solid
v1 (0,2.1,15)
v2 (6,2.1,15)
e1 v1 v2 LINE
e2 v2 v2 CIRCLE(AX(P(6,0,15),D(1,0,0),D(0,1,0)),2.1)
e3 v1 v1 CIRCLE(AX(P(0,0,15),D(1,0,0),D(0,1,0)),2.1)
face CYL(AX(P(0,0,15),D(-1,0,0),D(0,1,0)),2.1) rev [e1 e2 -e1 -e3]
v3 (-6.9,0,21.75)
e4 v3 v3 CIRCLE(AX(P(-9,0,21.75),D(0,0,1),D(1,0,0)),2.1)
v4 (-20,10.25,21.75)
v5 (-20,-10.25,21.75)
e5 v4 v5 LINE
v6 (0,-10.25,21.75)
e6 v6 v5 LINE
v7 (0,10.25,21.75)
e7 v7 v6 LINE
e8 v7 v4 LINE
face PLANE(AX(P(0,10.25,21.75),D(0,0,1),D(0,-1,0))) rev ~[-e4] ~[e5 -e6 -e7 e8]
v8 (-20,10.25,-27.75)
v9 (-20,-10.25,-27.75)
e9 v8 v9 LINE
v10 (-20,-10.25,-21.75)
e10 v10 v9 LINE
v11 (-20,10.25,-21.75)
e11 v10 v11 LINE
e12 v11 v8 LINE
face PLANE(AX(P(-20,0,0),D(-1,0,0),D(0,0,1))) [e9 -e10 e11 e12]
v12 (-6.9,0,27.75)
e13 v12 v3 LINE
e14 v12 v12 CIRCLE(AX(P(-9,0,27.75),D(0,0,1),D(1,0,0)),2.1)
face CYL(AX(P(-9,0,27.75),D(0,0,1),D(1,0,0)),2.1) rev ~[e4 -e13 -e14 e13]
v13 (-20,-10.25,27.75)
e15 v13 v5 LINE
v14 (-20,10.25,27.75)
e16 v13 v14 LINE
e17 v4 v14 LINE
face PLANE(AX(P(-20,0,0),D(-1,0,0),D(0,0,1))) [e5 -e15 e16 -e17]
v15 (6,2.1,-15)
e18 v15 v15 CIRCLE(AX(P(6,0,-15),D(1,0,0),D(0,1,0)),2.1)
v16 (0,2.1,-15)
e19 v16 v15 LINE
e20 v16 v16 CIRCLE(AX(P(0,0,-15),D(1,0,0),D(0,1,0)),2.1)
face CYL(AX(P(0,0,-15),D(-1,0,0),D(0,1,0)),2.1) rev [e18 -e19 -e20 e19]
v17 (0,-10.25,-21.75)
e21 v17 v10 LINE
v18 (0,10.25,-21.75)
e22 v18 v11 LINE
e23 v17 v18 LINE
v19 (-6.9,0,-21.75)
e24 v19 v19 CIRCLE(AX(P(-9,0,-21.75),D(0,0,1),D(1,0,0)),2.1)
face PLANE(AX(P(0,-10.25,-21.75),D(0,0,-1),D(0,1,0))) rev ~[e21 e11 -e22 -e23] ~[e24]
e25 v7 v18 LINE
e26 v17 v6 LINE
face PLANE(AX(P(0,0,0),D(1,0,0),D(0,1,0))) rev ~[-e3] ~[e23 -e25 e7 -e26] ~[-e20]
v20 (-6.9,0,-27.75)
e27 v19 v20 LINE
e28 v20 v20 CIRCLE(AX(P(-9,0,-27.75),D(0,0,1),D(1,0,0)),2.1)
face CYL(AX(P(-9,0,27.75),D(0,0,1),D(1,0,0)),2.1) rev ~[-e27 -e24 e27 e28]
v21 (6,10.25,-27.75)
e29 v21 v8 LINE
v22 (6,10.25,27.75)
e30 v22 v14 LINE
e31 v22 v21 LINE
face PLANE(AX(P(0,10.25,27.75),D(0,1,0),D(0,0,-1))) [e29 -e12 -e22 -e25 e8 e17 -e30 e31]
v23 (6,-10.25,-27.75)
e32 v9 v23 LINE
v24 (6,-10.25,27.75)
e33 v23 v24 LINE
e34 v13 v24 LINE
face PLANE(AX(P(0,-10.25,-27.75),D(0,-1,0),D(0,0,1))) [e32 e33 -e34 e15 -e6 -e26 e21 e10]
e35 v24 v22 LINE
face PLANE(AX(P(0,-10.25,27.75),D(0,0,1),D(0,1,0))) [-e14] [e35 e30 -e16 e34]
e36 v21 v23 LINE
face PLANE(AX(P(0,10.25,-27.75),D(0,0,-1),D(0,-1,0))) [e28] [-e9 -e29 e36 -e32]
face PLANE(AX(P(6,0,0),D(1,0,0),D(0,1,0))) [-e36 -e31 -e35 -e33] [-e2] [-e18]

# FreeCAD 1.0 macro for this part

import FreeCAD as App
import Part
import Sketcher
from FreeCAD import Vector

doc = App.newDocument("Part")
body = doc.addObject("PartDesign::Body", "Body")

sketch1 = body.newObject("Sketcher::SketchObject", "Sketch")
sketch1.AttachmentSupport = (doc.getObject("YZ_Plane"), [""])
sketch1.MapMode = "FlatFace"
sketch1.addGeometry([
    Part.LineSegment(Vector(10.25, 27.75, 0), Vector(-10.25, 27.75, 0)),
    Part.LineSegment(Vector(-10.25, 27.75, 0), Vector(-10.25, -27.75, 0)),
    Part.LineSegment(Vector(-10.25, -27.75, 0), Vector(10.25, -27.75, 0)),
    Part.LineSegment(Vector(10.25, -27.75, 0), Vector(10.25, 27.75, 0)),
    Part.Circle(Vector(0, -15, 0), Vector(0, 0, 1), 2.1),
    Part.Circle(Vector(0, 15, 0), Vector(0, 0, 1), 2.1),
], False)
sketch1.addConstraint([
    Sketcher.Constraint("Coincident", 0, 2, 1, 1),
    Sketcher.Constraint("Coincident", 1, 2, 2, 1),
    Sketcher.Constraint("Coincident", 2, 2, 3, 1),
    Sketcher.Constraint("Coincident", 3, 2, 0, 1),
    Sketcher.Constraint("Horizontal", 0),
    Sketcher.Constraint("Vertical", 1),
    Sketcher.Constraint("Horizontal", 2),
    Sketcher.Constraint("Vertical", 3),
    Sketcher.Constraint("Equal", 4, 5),
    Sketcher.Constraint("Symmetric", 4, 3, 5, 3, -1, 1),
    Sketcher.Constraint("Symmetric", 0, 2, 2, 2, -1, 1),
    Sketcher.Constraint("PointOnObject", 4, 3, -2),
    Sketcher.Constraint("Diameter", 4, 4.2),
    Sketcher.Constraint("DistanceX", 0, 2, 0, 1, 20.5),
    Sketcher.Constraint("DistanceY", 1, 2, 1, 1, 55.5),
    Sketcher.Constraint("DistanceY", 4, 3, 5, 3, 30.0),
])
pad1 = body.newObject("PartDesign::Pad", "Pad")
pad1.Profile = sketch1
pad1.Length = 6

sketch2 = body.newObject("Sketcher::SketchObject", "Sketch001")
sketch2.AttachmentSupport = (doc.getObject("YZ_Plane"), [""])
sketch2.MapMode = "FlatFace"
sketch2.addGeometry([
    Part.LineSegment(Vector(-10.25, 21.75, 0), Vector(-10.25, 27.75, 0)),
    Part.LineSegment(Vector(-10.25, 27.75, 0), Vector(10.25, 27.75, 0)),
    Part.LineSegment(Vector(10.25, 27.75, 0), Vector(10.25, 21.75, 0)),
    Part.LineSegment(Vector(10.25, 21.75, 0), Vector(-10.25, 21.75, 0)),
    Part.LineSegment(Vector(-10.25, -27.75, 0), Vector(-10.25, -21.75, 0)),
    Part.LineSegment(Vector(-10.25, -21.75, 0), Vector(10.25, -21.75, 0)),
    Part.LineSegment(Vector(10.25, -21.75, 0), Vector(10.25, -27.75, 0)),
    Part.LineSegment(Vector(10.25, -27.75, 0), Vector(-10.25, -27.75, 0)),
], False)
sketch2.addConstraint([
    Sketcher.Constraint("Coincident", 0, 2, 1, 1),
    Sketcher.Constraint("Coincident", 1, 2, 2, 1),
    Sketcher.Constraint("Coincident", 2, 2, 3, 1),
    Sketcher.Constraint("Coincident", 3, 2, 0, 1),
    Sketcher.Constraint("Coincident", 4, 2, 5, 1),
    Sketcher.Constraint("Coincident", 5, 2, 6, 1),
    Sketcher.Constraint("Coincident", 6, 2, 7, 1),
    Sketcher.Constraint("Coincident", 7, 2, 4, 1),
    Sketcher.Constraint("Vertical", 0),
    Sketcher.Constraint("Horizontal", 1),
    Sketcher.Constraint("Vertical", 2),
    Sketcher.Constraint("Horizontal", 3),
    Sketcher.Constraint("Vertical", 4),
    Sketcher.Constraint("Horizontal", 5),
    Sketcher.Constraint("Vertical", 6),
    Sketcher.Constraint("Horizontal", 7),
    Sketcher.Constraint("Symmetric", 2, 2, 4, 2, -1, 1),
    Sketcher.Constraint("Symmetric", 0, 2, 6, 2, -1, 1),
    Sketcher.Constraint("Vertical", 3, 2, 4, 2),
    Sketcher.Constraint("DistanceY", 0, 1, 0, 2, 6.0),
    Sketcher.Constraint("DistanceX", 1, 1, 1, 2, 20.5),
    Sketcher.Constraint("DistanceY", 4, 2, 3, 2, 43.5),
])
pad2 = body.newObject("PartDesign::Pad", "Pad001")
pad2.Profile = sketch2
pad2.Length = 20
pad2.Reversed = True

sketch3 = body.newObject("Sketcher::SketchObject", "Sketch002")
sketch3.AttachmentSupport = (doc.getObject("XY_Plane"), [""])
sketch3.MapMode = "FlatFace"
sketch3.AttachmentOffset = App.Placement(Vector(0, 0, 27.75), App.Rotation())
sketch3.addGeometry(Part.Circle(Vector(-9, 0, 0), Vector(0, 0, 1), 2.1), False)
sketch3.addConstraint([
    Sketcher.Constraint("PointOnObject", 0, 3, -1),
    Sketcher.Constraint("Diameter", 0, 4.2),
    Sketcher.Constraint("DistanceX", 0, 3, -1, 1, 9.0),
])
pocket1 = body.newObject("PartDesign::Pocket", "Pocket")
pocket1.Profile = sketch3
pocket1.Length = 56.5125

doc.recompute()
